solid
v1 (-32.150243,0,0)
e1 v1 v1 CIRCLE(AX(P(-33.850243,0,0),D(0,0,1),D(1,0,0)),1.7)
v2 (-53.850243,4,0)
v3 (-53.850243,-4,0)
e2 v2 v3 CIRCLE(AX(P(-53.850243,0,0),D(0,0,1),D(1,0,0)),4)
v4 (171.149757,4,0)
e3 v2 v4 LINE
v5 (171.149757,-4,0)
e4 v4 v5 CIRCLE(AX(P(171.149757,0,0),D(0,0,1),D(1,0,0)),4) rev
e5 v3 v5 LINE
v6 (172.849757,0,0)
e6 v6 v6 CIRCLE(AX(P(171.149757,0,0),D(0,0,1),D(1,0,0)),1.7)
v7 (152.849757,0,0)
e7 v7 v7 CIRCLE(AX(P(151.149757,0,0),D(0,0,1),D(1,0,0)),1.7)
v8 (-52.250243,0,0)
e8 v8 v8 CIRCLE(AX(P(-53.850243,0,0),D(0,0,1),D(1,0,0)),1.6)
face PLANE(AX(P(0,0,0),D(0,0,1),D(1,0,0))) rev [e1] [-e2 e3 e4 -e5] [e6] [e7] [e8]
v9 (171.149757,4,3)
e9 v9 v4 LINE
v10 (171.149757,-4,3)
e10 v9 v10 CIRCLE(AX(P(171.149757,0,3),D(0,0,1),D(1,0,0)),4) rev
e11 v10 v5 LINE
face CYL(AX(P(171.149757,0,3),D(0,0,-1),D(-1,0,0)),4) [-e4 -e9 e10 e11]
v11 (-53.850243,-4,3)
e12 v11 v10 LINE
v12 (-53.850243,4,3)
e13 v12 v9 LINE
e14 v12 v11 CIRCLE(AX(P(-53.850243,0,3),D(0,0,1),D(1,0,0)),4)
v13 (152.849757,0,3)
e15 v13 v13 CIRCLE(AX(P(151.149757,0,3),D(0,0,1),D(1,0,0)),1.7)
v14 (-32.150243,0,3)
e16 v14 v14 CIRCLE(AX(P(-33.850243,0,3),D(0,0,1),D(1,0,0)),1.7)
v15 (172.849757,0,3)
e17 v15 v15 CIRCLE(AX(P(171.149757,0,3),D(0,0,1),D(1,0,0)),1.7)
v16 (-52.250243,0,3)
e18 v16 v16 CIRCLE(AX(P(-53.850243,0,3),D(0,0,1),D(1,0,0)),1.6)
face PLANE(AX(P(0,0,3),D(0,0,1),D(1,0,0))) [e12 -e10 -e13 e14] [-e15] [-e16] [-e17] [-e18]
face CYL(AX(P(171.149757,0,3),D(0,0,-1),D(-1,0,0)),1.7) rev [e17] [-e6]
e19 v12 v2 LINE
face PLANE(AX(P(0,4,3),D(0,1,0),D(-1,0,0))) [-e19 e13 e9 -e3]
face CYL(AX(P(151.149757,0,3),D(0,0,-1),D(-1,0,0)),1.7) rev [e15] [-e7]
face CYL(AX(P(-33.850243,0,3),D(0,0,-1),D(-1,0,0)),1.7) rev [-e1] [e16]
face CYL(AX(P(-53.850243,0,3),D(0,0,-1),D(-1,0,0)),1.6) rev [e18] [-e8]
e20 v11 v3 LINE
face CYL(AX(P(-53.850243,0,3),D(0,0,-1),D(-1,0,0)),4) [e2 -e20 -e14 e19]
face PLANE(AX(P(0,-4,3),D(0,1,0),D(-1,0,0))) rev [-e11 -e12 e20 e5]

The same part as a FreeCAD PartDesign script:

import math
import FreeCAD as App
import Part
import Sketcher
Q = App.Units.Quantity

doc = App.newDocument("Part")
params = doc.addObject("Spreadsheet::Sheet", "Params")
for row, (alias, value) in enumerate([
    ("sketch1_radius", "4 mm"),
    ("sketch1_diameter", "3.4 mm"),
    ("sketch1_diameter2", "3.2 mm"),
    ("sketch1_width", "225 mm"),
    ("pad1_length", "3 mm"),
], start=1):
    params.set(f"A{row}", alias)
    params.set(f"B{row}", "=" + value)
    params.setAlias(f"B{row}", alias)

body = doc.addObject("PartDesign::Body", "Body")

sketch1 = doc.addObject("Sketcher::SketchObject", "Sketch")
body.addObject(sketch1)
sketch1.AttachmentSupport = (doc.XY_Plane, [""])
sketch1.MapMode = "FlatFace"
sketch1.addGeometry([
    Part.LineSegment(App.Vector(171.1, 4, 0), App.Vector(-53.9, 4, 0)),
    Part.ArcOfCircle(Part.Circle(App.Vector(-53.9, 0, 0), App.Vector(0, 0, 1), 4), math.radians(90), math.radians(270)),
    Part.LineSegment(App.Vector(-53.9, -4, 0), App.Vector(171.1, -4, 0)),
    Part.ArcOfCircle(Part.Circle(App.Vector(171.1, 0, 0), App.Vector(0, 0, 1), 4), math.radians(-90), math.radians(90)),
    Part.Circle(App.Vector(171.1, 0, 0), App.Vector(0, 0, 1), 1.7),
    Part.Circle(App.Vector(151.1, 0, 0), App.Vector(0, 0, 1), 1.7),
    Part.Circle(App.Vector(-33.9, 0, 0), App.Vector(0, 0, 1), 1.7),
    Part.Circle(App.Vector(-53.9, 0, 0), App.Vector(0, 0, 1), 1.6),
], False)
sketch1.addConstraint([
    Sketcher.Constraint("Tangent", 0, 2, 1, 1),
    Sketcher.Constraint("Tangent", 1, 2, 2, 1),
    Sketcher.Constraint("Tangent", 2, 2, 3, 1),
    Sketcher.Constraint("Tangent", 3, 2, 0, 1),
    Sketcher.Constraint("Horizontal", 0),
    Sketcher.Constraint("Horizontal", 2),
    Sketcher.Constraint("Coincident", 4, 3, 3, 3),
    Sketcher.Constraint("Coincident", 7, 3, 1, 3),
    Sketcher.Constraint("Equal", 4, 5),
    Sketcher.Constraint("Equal", 5, 6),
    Sketcher.Constraint("PointOnObject", 1, 3, -1),
    Sketcher.Constraint("PointOnObject", 5, 3, -1),
    Sketcher.Constraint("PointOnObject", 6, 3, -1),
    Sketcher.Constraint("Radius", 1, Q("4 mm")),
    Sketcher.Constraint("Diameter", 4, Q("3.4 mm")),
    Sketcher.Constraint("Diameter", 7, Q("3.2 mm")),
    Sketcher.Constraint("DistanceX", 0, 2, 0, 1, Q("225 mm")),
    Sketcher.Constraint("DistanceX", 5, 3, 3, 3, Q("20 mm")),
    Sketcher.Constraint("DistanceX", 1, 3, 6, 3, Q("20 mm")),
    Sketcher.Constraint("DistanceX", 1, 3, -1, 1, Q("53.850243 mm")),
])
sketch1.setExpression("Constraints[13]", "Params.sketch1_radius")
sketch1.setExpression("Constraints[14]", "Params.sketch1_diameter")
sketch1.setExpression("Constraints[15]", "Params.sketch1_diameter2")
sketch1.setExpression("Constraints[16]", "Params.sketch1_width")
pad1 = doc.addObject("PartDesign::Pad", "Pad")
body.addObject(pad1)
pad1.Profile = sketch1
pad1.setExpression("Length", "Params.pad1_length")

doc.recompute()
